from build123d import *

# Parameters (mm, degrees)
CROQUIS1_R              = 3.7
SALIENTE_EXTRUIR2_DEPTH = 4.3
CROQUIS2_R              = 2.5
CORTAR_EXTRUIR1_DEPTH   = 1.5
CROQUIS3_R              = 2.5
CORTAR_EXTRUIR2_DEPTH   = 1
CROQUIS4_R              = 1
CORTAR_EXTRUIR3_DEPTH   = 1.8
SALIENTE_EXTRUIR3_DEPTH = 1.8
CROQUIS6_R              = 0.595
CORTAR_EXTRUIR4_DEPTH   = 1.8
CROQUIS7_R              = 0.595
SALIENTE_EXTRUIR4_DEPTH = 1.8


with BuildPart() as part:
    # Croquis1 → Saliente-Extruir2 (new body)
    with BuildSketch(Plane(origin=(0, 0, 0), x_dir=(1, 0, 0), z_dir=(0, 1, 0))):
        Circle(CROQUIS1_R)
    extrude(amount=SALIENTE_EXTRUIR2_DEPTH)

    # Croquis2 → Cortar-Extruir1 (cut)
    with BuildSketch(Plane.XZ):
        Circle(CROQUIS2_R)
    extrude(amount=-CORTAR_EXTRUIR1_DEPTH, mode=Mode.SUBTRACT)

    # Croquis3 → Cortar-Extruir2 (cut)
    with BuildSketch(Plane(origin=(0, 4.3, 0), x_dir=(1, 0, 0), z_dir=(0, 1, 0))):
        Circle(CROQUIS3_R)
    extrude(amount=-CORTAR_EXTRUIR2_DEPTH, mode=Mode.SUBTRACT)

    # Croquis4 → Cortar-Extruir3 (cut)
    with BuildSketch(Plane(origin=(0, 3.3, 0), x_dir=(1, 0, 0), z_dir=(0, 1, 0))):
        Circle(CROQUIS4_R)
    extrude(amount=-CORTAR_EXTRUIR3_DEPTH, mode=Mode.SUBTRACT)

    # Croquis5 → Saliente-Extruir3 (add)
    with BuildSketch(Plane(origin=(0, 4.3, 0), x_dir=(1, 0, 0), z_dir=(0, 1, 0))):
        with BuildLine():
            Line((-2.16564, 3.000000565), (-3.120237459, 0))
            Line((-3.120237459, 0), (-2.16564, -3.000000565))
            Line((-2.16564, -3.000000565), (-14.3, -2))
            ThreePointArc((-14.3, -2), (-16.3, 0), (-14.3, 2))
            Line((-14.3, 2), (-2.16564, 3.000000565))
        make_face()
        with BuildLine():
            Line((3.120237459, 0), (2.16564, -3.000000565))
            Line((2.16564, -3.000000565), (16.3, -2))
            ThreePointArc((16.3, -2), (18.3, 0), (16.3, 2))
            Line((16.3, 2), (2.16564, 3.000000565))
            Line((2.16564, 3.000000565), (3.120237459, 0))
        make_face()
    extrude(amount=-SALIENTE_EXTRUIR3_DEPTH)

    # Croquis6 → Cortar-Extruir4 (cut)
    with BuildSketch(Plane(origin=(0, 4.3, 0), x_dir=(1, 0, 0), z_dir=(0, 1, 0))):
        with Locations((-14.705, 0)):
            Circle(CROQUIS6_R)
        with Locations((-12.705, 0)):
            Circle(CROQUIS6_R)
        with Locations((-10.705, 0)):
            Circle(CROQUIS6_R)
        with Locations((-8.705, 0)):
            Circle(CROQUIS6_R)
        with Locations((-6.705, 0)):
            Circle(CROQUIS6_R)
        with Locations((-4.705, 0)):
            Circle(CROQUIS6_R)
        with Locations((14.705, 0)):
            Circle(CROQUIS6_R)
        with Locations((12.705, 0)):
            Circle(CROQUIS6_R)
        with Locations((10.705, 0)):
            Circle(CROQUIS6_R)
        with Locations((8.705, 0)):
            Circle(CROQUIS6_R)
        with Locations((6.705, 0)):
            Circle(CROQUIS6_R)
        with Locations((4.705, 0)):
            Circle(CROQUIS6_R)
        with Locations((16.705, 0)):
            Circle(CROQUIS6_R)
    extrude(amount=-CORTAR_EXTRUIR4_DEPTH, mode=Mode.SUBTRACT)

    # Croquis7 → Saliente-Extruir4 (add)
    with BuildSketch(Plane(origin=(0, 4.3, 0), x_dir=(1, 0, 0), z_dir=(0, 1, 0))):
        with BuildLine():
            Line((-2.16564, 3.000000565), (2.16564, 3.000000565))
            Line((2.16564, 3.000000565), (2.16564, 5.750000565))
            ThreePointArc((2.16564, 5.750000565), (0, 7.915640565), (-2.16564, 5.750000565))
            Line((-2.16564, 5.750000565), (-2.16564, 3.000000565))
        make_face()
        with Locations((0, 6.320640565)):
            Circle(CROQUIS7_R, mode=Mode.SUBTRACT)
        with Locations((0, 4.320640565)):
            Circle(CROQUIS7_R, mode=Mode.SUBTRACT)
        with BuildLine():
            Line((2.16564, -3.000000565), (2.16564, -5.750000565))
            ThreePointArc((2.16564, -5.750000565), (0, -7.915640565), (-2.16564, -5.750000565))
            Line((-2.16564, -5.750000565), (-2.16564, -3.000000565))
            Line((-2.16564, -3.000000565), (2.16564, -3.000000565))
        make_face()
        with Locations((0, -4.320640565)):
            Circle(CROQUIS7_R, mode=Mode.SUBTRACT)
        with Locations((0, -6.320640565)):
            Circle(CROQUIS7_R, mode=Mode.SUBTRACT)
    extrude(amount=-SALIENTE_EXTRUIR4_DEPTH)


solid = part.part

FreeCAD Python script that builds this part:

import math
import FreeCAD as App
import Part
import Sketcher

V = App.Vector

doc = App.newDocument("Part")
body = doc.addObject("PartDesign::Body", "Body")

# Sketch on XZ plane
sketch1 = body.newObject("Sketcher::SketchObject", "Sketch")
sketch1.AttachmentSupport = (doc.getObject("XZ_Plane"), [""])
sketch1.MapMode = "FlatFace"
sketch1.addGeometry(Part.Circle(V(0, 0, 0), V(0, 0, 1), 3.7), False)
sketch1.addConstraint([
    Sketcher.Constraint("Coincident", 0, 3, -1, 1),
    Sketcher.Constraint("Diameter", 0, 7.4),
])
pad1 = body.newObject("PartDesign::Pad", "Pad")
pad1.Profile = sketch1
pad1.Length = 4.3
pad1.Reversed = True

# Sketch on XZ plane
sketch2 = body.newObject("Sketcher::SketchObject", "Sketch001")
sketch2.AttachmentSupport = (doc.getObject("XZ_Plane"), [""])
sketch2.MapMode = "FlatFace"
sketch2.addGeometry(Part.Circle(V(0, 0, 0), V(0, 0, 1), 2.5), False)
sketch2.addConstraint([
    Sketcher.Constraint("Coincident", 0, 3, -1, 1),
    Sketcher.Constraint("Diameter", 0, 5.0),
])
pocket1 = body.newObject("PartDesign::Pocket", "Pocket")
pocket1.Profile = sketch2
pocket1.Length = 1.5

# Sketch on XZ plane
sketch3 = body.newObject("Sketcher::SketchObject", "Sketch002")
sketch3.AttachmentSupport = (doc.getObject("XZ_Plane"), [""])
sketch3.MapMode = "FlatFace"
sketch3.AttachmentOffset = App.Placement(V(0, 0, -4.3), App.Rotation())
sketch3.addGeometry(Part.Circle(V(0, 0, 0), V(0, 0, 1), 2.5), False)
sketch3.addConstraint([
    Sketcher.Constraint("Coincident", 0, 3, -1, 1),
    Sketcher.Constraint("Diameter", 0, 5.0),
])
pocket2 = body.newObject("PartDesign::Pocket", "Pocket001")
pocket2.Profile = sketch3
pocket2.Length = 1
pocket2.Reversed = True

# Sketch on XZ plane
sketch4 = body.newObject("Sketcher::SketchObject", "Sketch003")
sketch4.AttachmentSupport = (doc.getObject("XZ_Plane"), [""])
sketch4.MapMode = "FlatFace"
sketch4.AttachmentOffset = App.Placement(V(0, 0, -3.3), App.Rotation())
sketch4.addGeometry(Part.Circle(V(0, 0, 0), V(0, 0, 1), 1), False)
sketch4.addConstraint([
    Sketcher.Constraint("Coincident", 0, 3, -1, 1),
    Sketcher.Constraint("Diameter", 0, 2.0),
])
pocket3 = body.newObject("PartDesign::Pocket", "Pocket002")
pocket3.Profile = sketch4
pocket3.Length = 1.8
pocket3.Reversed = True

# Sketch on XZ plane
sketch5 = body.newObject("Sketcher::SketchObject", "Sketch004")
sketch5.AttachmentSupport = (doc.getObject("XZ_Plane"), [""])
sketch5.MapMode = "FlatFace"
sketch5.AttachmentOffset = App.Placement(V(0, 0, -4.3), App.Rotation())
sketch5.addGeometry([
    Part.LineSegment(V(-3.120237, 0, 0), V(-2.16564, -3.000001, 0)),  # 0
    Part.LineSegment(V(-2.16564, -3.000001, 0), V(-14.3, -2, 0)),  # 1
    Part.ArcOfCircle(Part.Circle(V(-14.3, 0, 0), V(0, 0, 1), 2), math.radians(90), math.radians(270)),  # 2
    Part.LineSegment(V(-14.3, 2, 0), V(-2.16564, 3.000001, 0)),  # 3
    Part.LineSegment(V(-2.16564, 3.000001, 0), V(-3.120237, 0, 0)),  # 4
    Part.LineSegment(V(3.120237, 0, 0), V(2.16564, 3.000001, 0)),  # 5
    Part.LineSegment(V(2.16564, 3.000001, 0), V(16.3, 2, 0)),  # 6
    Part.ArcOfCircle(Part.Circle(V(16.3, 0, 0), V(0, 0, 1), 2), math.radians(-90), math.radians(90)),  # 7
    Part.LineSegment(V(16.3, -2, 0), V(2.16564, -3.000001, 0)),  # 8
    Part.LineSegment(V(2.16564, -3.000001, 0), V(3.120237, 0, 0)),  # 9
], False)
sketch5.addConstraint([
    Sketcher.Constraint("Coincident", 0, 2, 1, 1),
    Sketcher.Constraint("Coincident", 1, 2, 2, 2),
    Sketcher.Constraint("Coincident", 2, 1, 3, 1),
    Sketcher.Constraint("Coincident", 3, 2, 4, 1),
    Sketcher.Constraint("Coincident", 4, 2, 0, 1),
    Sketcher.Constraint("Coincident", 5, 2, 6, 1),
    Sketcher.Constraint("Coincident", 6, 2, 7, 2),
    Sketcher.Constraint("Coincident", 7, 1, 8, 1),
    Sketcher.Constraint("Coincident", 8, 2, 9, 1),
    Sketcher.Constraint("Coincident", 9, 2, 5, 1),
    Sketcher.Constraint("Equal", 2, 7),
    Sketcher.Constraint("Symmetric", 0, 2, 5, 2, -1, 1),
    Sketcher.Constraint("Symmetric", 3, 2, 8, 2, -1, 1),
    Sketcher.Constraint("Symmetric", 4, 2, 9, 2, -1, 1),
    Sketcher.Constraint("Symmetric", 3, 2, 5, 2, -2),
    Sketcher.Constraint("Symmetric", 1, 2, 2, 1, -1),
    Sketcher.Constraint("Symmetric", 6, 2, 7, 1, -1),
    Sketcher.Constraint("PointOnObject", 4, 2, -1),
    Sketcher.Constraint("Vertical", 2, 3, 1, 2),
    Sketcher.Constraint("Vertical", 7, 3, 6, 2),
    Sketcher.Constraint("Radius", 2, 2.0),
    Sketcher.Constraint("DistanceY", 0, 2, -1, 1, 3.000001),
    Sketcher.Constraint("DistanceX", 2, 3, -1, 1, 14.3),
    Sketcher.Constraint("DistanceX", -1, 1, 7, 3, 16.3),
    Sketcher.Constraint("Distance", 6, 14.169691),
    Sketcher.Constraint("Distance", 0, 3.148215),
])
pad2 = body.newObject("PartDesign::Pad", "Pad001")
pad2.Profile = sketch5
pad2.Length = 1.8

# Sketch on XZ plane
sketch6 = body.newObject("Sketcher::SketchObject", "Sketch005")
sketch6.AttachmentSupport = (doc.getObject("XZ_Plane"), [""])
sketch6.MapMode = "FlatFace"
sketch6.AttachmentOffset = App.Placement(V(0, 0, -4.3), App.Rotation())
sketch6.addGeometry([
    Part.Circle(V(-14.705, 0, 0), V(0, 0, 1), 0.595),  # 0
    Part.Circle(V(-12.705, 0, 0), V(0, 0, 1), 0.595),  # 1
    Part.Circle(V(-10.705, 0, 0), V(0, 0, 1), 0.595),  # 2
    Part.Circle(V(-8.705, 0, 0), V(0, 0, 1), 0.595),  # 3
    Part.Circle(V(-6.705, 0, 0), V(0, 0, 1), 0.595),  # 4
    Part.Circle(V(-4.705, 0, 0), V(0, 0, 1), 0.595),  # 5
    Part.Circle(V(14.705, 0, 0), V(0, 0, 1), 0.595),  # 6
    Part.Circle(V(12.705, 0, 0), V(0, 0, 1), 0.595),  # 7
    Part.Circle(V(10.705, 0, 0), V(0, 0, 1), 0.595),  # 8
    Part.Circle(V(8.705, 0, 0), V(0, 0, 1), 0.595),  # 9
    Part.Circle(V(6.705, 0, 0), V(0, 0, 1), 0.595),  # 10
    Part.Circle(V(4.705, 0, 0), V(0, 0, 1), 0.595),  # 11
    Part.Circle(V(16.705, 0, 0), V(0, 0, 1), 0.595),  # 12
], False)
sketch6.addConstraint([
    Sketcher.Constraint("Equal", 0, 1),
    Sketcher.Constraint("Equal", 1, 2),
    Sketcher.Constraint("Equal", 2, 3),
    Sketcher.Constraint("Equal", 3, 4),
    Sketcher.Constraint("Equal", 4, 5),
    Sketcher.Constraint("Equal", 5, 6),
    Sketcher.Constraint("Equal", 6, 7),
    Sketcher.Constraint("Equal", 7, 8),
    Sketcher.Constraint("Equal", 8, 9),
    Sketcher.Constraint("Equal", 9, 10),
    Sketcher.Constraint("Equal", 10, 11),
    Sketcher.Constraint("Equal", 11, 12),
    Sketcher.Constraint("Symmetric", 0, 3, 6, 3, -1, 1),
    Sketcher.Constraint("Symmetric", 1, 3, 7, 3, -1, 1),
    Sketcher.Constraint("Symmetric", 2, 3, 8, 3, -1, 1),
    Sketcher.Constraint("Symmetric", 3, 3, 9, 3, -1, 1),
    Sketcher.Constraint("Symmetric", 4, 3, 10, 3, -1, 1),
    Sketcher.Constraint("Symmetric", 5, 3, 11, 3, -1, 1),
    Sketcher.Constraint("PointOnObject", 0, 3, -1),
    Sketcher.Constraint("PointOnObject", 1, 3, -1),
    Sketcher.Constraint("PointOnObject", 2, 3, -1),
    Sketcher.Constraint("PointOnObject", 3, 3, -1),
    Sketcher.Constraint("PointOnObject", 4, 3, -1),
    Sketcher.Constraint("PointOnObject", 5, 3, -1),
    Sketcher.Constraint("PointOnObject", 12, 3, -1),
    Sketcher.Constraint("Diameter", 0, 1.19),
    Sketcher.Constraint("DistanceX", 0, 3, 1, 3, 2.0),
    Sketcher.Constraint("DistanceX", 1, 3, 2, 3, 2.0),
    Sketcher.Constraint("DistanceX", 2, 3, 3, 3, 2.0),
    Sketcher.Constraint("DistanceX", 3, 3, 4, 3, 2.0),
    Sketcher.Constraint("DistanceX", 4, 3, 5, 3, 2.0),
    Sketcher.Constraint("DistanceX", 6, 3, 12, 3, 2.0),
    Sketcher.Constraint("DistanceX", 5, 3, 6, 3, 19.41),
])
pocket4 = body.newObject("PartDesign::Pocket", "Pocket003")
pocket4.Profile = sketch6
pocket4.Length = 1.8
pocket4.Reversed = True

# Sketch on XZ plane
sketch7 = body.newObject("Sketcher::SketchObject", "Sketch006")
sketch7.AttachmentSupport = (doc.getObject("XZ_Plane"), [""])
sketch7.MapMode = "FlatFace"
sketch7.AttachmentOffset = App.Placement(V(0, 0, -4.3), App.Rotation())
sketch7.addGeometry([
    Part.LineSegment(V(-2.16564, -3.000001, 0), V(2.16564, -3.000001, 0)),  # 0
    Part.LineSegment(V(2.16564, -3.000001, 0), V(2.16564, -5.750001, 0)),  # 1
    Part.ArcOfCircle(Part.Circle(V(0, -5.750001, 0), V(0, 0, 1), 2.16564), math.radians(180), math.radians(360)),  # 2
    Part.LineSegment(V(-2.16564, -5.750001, 0), V(-2.16564, -3.000001, 0)),  # 3
    Part.Circle(V(0, -4.320641, 0), V(0, 0, 1), 0.595),  # 4
    Part.Circle(V(0, -6.320641, 0), V(0, 0, 1), 0.595),  # 5
    Part.LineSegment(V(2.16564, 5.750001, 0), V(2.16564, 3.000001, 0)),  # 6
    Part.LineSegment(V(2.16564, 3.000001, 0), V(-2.16564, 3.000001, 0)),  # 7
    Part.LineSegment(V(-2.16564, 3.000001, 0), V(-2.16564, 5.750001, 0)),  # 8
    Part.ArcOfCircle(Part.Circle(V(0, 5.750001, 0), V(0, 0, 1), 2.16564), math.radians(0), math.radians(180)),  # 9
    Part.Circle(V(0, 6.320641, 0), V(0, 0, 1), 0.595),  # 10
    Part.Circle(V(0, 4.320641, 0), V(0, 0, 1), 0.595),  # 11
], False)
sketch7.addConstraint([
    Sketcher.Constraint("Coincident", 0, 2, 1, 1),
    Sketcher.Constraint("Tangent", 1, 2, 2, 2),
    Sketcher.Constraint("Tangent", 2, 1, 3, 1),
    Sketcher.Constraint("Coincident", 3, 2, 0, 1),
    Sketcher.Constraint("Coincident", 6, 2, 7, 1),
    Sketcher.Constraint("Coincident", 7, 2, 8, 1),
    Sketcher.Constraint("Tangent", 8, 2, 9, 2),
    Sketcher.Constraint("Tangent", 9, 1, 6, 1),
    Sketcher.Constraint("Horizontal", 0),
    Sketcher.Constraint("Vertical", 1),
    Sketcher.Constraint("Vertical", 3),
    Sketcher.Constraint("Vertical", 6),
    Sketcher.Constraint("Horizontal", 7),
    Sketcher.Constraint("Vertical", 8),
    Sketcher.Constraint("Equal", 4, 5),
    Sketcher.Constraint("Equal", 2, 9),
    Sketcher.Constraint("Equal", 5, 10),
    Sketcher.Constraint("Equal", 10, 11),
    Sketcher.Constraint("Symmetric", 2, 3, 9, 3, -1, 1),
    Sketcher.Constraint("Symmetric", 5, 3, 10, 3, -1, 1),
    Sketcher.Constraint("Symmetric", 4, 3, 11, 3, -1, 1),
    Sketcher.Constraint("Symmetric", 0, 2, 6, 2, -1),
    Sketcher.Constraint("PointOnObject", 4, 3, -2),
    Sketcher.Constraint("PointOnObject", 5, 3, -2),
    Sketcher.Constraint("Diameter", 4, 1.19),
    Sketcher.Constraint("DistanceY", 0, 2, -1, 1, 3.000001),
    Sketcher.Constraint("DistanceY", 5, 3, 4, 3, 2.0),
    Sketcher.Constraint("DistanceY", 1, 2, 1, 1, 2.75),
    Sketcher.Constraint("Radius", 2, 2.16564),
    Sketcher.Constraint("DistanceY", 4, 3, -1, 1, 4.320641),
])
pad3 = body.newObject("PartDesign::Pad", "Pad002")
pad3.Profile = sketch7
pad3.Length = 1.8

doc.recompute()
